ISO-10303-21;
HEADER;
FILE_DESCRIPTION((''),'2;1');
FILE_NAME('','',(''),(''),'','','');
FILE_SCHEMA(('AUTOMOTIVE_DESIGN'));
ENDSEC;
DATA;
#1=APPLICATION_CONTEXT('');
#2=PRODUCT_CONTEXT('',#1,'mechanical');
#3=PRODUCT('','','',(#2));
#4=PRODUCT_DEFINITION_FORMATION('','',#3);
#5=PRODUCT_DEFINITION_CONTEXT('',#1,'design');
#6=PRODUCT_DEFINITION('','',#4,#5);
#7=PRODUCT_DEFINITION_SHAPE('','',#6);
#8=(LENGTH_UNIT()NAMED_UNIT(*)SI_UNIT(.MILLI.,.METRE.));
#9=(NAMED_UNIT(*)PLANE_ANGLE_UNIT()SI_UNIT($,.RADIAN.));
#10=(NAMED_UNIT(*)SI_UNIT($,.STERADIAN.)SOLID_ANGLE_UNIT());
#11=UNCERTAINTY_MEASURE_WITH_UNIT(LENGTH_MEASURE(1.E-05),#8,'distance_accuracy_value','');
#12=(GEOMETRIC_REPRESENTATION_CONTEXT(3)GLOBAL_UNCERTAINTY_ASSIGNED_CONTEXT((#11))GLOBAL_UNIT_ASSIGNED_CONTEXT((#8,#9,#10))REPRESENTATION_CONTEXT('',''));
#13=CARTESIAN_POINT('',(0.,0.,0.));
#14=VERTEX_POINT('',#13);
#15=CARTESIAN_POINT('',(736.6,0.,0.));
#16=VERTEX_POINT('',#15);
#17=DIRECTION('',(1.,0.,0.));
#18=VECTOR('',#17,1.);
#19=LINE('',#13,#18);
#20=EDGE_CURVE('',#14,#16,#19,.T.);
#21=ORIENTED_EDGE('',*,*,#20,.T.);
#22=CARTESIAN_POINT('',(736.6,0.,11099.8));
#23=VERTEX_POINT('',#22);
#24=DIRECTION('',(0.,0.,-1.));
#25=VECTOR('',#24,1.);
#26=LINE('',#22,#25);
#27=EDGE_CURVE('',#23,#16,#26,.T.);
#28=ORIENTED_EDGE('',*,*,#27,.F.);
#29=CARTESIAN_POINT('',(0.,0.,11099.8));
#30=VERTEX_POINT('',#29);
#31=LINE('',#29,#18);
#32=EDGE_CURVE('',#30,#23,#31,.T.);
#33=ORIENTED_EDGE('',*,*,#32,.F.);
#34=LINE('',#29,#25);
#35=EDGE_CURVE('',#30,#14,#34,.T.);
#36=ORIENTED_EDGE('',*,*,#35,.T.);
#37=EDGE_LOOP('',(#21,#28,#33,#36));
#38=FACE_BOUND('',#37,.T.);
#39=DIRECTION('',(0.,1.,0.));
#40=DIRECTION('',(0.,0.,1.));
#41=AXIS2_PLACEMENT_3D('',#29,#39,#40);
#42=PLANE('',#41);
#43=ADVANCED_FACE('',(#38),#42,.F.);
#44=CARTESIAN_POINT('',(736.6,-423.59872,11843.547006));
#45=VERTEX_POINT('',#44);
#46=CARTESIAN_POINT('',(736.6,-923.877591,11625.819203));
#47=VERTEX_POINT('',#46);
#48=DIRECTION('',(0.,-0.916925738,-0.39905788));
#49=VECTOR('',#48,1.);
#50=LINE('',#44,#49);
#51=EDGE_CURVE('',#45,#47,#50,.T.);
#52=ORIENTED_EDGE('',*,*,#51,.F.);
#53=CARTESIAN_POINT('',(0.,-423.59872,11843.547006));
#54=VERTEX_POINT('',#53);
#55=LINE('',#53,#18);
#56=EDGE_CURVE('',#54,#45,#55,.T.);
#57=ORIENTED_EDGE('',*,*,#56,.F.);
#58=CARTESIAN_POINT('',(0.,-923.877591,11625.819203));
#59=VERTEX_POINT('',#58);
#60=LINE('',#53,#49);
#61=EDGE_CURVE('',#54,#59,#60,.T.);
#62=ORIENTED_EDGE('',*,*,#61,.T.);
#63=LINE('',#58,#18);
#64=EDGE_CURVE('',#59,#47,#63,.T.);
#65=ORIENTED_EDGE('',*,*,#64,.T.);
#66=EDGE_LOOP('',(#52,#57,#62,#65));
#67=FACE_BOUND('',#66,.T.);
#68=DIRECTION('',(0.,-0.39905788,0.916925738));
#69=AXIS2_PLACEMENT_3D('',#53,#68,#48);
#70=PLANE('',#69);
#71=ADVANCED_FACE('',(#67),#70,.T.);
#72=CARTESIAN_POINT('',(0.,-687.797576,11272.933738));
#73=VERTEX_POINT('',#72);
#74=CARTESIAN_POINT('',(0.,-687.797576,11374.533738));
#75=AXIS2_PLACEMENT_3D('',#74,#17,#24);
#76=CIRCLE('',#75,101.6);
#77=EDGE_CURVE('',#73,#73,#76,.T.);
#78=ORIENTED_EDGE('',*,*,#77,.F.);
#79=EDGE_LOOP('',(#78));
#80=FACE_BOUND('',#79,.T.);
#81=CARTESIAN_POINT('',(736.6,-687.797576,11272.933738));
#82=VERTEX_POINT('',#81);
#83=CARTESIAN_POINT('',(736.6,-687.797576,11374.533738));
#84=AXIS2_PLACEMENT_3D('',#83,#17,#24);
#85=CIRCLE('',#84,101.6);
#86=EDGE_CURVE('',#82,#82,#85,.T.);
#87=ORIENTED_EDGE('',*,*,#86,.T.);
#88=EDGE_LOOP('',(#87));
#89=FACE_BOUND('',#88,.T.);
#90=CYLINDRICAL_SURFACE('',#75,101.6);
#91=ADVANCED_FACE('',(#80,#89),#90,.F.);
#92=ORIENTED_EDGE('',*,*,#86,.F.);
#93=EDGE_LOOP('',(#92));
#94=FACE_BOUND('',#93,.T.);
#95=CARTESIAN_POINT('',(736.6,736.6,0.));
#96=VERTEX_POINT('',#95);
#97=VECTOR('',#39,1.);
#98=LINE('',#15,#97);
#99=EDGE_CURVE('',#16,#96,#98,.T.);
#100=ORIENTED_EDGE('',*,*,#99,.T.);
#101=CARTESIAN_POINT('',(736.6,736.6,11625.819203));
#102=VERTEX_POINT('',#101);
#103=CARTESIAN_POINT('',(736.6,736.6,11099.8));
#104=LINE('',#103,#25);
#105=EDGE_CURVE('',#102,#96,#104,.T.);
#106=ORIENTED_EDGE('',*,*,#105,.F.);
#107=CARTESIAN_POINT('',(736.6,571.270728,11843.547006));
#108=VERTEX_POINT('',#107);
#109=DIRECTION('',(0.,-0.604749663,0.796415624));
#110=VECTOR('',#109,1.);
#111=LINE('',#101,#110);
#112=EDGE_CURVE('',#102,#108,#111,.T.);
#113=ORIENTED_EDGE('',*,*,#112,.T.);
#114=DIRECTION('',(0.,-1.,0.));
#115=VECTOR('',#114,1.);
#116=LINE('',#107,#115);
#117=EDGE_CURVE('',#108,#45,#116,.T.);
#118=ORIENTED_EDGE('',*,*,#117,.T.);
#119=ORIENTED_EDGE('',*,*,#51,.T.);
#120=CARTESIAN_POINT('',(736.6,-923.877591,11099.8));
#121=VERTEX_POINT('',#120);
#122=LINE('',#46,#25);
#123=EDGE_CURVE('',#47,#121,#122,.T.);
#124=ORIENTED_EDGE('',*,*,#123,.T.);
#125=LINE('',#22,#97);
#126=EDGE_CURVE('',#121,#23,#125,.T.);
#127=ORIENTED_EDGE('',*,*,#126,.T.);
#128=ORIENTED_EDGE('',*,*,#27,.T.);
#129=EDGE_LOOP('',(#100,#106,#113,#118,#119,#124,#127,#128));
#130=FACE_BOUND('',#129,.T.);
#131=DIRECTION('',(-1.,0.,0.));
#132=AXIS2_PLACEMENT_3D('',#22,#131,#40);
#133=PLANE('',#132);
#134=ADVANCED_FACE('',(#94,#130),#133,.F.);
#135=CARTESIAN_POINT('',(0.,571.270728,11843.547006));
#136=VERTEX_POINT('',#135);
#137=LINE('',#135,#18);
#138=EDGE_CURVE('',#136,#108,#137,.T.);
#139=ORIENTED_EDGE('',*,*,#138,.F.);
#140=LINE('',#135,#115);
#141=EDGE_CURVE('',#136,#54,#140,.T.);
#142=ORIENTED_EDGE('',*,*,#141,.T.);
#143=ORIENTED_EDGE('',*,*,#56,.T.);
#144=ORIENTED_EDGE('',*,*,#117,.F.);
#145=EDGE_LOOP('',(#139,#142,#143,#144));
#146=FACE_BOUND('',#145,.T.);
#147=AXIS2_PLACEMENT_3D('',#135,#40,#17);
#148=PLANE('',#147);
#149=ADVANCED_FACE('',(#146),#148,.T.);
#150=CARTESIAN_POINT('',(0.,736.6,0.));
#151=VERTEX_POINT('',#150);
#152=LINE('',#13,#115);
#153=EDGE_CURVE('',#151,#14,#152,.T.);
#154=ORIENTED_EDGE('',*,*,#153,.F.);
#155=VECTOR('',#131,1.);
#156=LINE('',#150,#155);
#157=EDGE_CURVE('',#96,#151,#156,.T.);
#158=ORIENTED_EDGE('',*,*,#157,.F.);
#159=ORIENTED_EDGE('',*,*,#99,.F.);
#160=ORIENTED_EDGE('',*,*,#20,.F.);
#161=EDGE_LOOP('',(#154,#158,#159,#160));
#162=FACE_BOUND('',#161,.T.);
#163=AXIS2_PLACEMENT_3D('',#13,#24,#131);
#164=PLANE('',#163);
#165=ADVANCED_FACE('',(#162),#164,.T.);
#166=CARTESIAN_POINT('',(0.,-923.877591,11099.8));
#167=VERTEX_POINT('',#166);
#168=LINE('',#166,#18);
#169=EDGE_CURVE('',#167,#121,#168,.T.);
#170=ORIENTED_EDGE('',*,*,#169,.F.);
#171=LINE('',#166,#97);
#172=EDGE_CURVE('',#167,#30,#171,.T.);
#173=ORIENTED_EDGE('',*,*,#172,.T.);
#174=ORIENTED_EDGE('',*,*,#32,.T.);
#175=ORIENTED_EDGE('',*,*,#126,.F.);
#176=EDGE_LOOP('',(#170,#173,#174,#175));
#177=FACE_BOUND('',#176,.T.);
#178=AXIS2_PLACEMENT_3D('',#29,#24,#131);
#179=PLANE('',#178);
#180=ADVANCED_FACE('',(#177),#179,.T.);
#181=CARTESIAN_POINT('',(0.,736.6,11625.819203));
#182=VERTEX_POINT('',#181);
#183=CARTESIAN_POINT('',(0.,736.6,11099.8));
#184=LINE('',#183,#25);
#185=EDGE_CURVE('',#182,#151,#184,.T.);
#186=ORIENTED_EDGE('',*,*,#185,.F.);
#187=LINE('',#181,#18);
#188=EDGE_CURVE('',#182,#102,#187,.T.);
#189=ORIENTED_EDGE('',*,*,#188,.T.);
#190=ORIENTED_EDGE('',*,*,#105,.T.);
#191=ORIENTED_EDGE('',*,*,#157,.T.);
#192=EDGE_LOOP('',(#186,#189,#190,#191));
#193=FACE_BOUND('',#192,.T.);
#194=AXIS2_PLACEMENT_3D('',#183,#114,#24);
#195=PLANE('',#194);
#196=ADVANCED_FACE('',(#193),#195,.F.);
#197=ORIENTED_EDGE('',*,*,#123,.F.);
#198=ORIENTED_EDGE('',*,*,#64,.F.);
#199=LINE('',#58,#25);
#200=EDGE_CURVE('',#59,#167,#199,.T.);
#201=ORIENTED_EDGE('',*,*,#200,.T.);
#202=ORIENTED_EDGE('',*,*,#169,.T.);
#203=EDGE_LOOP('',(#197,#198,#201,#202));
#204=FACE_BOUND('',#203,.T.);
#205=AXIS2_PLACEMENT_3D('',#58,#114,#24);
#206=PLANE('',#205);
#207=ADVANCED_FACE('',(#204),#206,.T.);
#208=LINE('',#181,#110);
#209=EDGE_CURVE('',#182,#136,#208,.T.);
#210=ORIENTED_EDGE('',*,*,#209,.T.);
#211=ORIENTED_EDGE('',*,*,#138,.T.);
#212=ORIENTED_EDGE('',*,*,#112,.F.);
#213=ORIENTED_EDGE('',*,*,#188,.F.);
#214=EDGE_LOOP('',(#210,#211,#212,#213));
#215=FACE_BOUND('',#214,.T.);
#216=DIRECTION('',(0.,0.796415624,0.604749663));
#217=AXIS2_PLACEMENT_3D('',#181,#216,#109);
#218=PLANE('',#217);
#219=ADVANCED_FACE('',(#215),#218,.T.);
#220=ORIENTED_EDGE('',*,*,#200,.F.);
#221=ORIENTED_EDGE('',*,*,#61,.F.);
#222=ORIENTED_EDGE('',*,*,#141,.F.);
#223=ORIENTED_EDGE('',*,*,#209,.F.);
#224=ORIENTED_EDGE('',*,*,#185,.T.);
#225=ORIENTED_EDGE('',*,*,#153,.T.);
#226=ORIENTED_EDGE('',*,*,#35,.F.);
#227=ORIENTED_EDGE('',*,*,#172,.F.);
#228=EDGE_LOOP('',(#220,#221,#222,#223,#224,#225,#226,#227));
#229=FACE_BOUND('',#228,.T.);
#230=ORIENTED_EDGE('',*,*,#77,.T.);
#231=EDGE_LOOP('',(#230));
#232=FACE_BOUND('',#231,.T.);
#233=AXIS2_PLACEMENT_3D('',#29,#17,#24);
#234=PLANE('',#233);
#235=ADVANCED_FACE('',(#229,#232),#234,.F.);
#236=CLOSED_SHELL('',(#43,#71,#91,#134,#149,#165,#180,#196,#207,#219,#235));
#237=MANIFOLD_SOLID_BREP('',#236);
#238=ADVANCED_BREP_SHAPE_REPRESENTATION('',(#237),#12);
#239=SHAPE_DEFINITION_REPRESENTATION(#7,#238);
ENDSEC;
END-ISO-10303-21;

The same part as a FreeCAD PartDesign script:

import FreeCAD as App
import Part
import Sketcher
Q = App.Units.Quantity

doc = App.newDocument("Part")
body = doc.addObject("PartDesign::Body", "Body")

# Sketch on XY plane
sketch1 = body.newObject("Sketcher::SketchObject", "Sketch")
sketch1.AttachmentSupport = (doc.getObject("XY_Plane"), [""])
sketch1.MapMode = "FlatFace"
sketch1.addGeometry(Part.LineSegment(App.Vector(0, 737, 0), App.Vector(0, 0, 0)), False)
sketch1.addGeometry(Part.LineSegment(App.Vector(0, 0, 0), App.Vector(737, 0, 0)), False)
sketch1.addGeometry(Part.LineSegment(App.Vector(737, 0, 0), App.Vector(737, 737, 0)), False)
sketch1.addGeometry(Part.LineSegment(App.Vector(737, 737, 0), App.Vector(0, 737, 0)), False)
sketch1.addConstraint(Sketcher.Constraint("Coincident", 0, 2, 1, 1))
sketch1.addConstraint(Sketcher.Constraint("Coincident", 1, 2, 2, 1))
sketch1.addConstraint(Sketcher.Constraint("Coincident", 2, 2, 3, 1))
sketch1.addConstraint(Sketcher.Constraint("Coincident", 3, 2, 0, 1))
sketch1.addConstraint(Sketcher.Constraint("Vertical", 0))
sketch1.addConstraint(Sketcher.Constraint("Horizontal", 1))
sketch1.addConstraint(Sketcher.Constraint("Vertical", 2))
sketch1.addConstraint(Sketcher.Constraint("Horizontal", 3))
sketch1.addConstraint(Sketcher.Constraint("Coincident", 0, 2, -1, 1))
sketch1.addConstraint(Sketcher.Constraint("Equal", 3, 0))
sketch1.addConstraint(Sketcher.Constraint("DistanceX", 1, 1, 1, 2, Q("29 in")))
pad1 = body.newObject("PartDesign::Pad", "Pad")
pad1.Profile = sketch1
pad1.Length = Q("437 in")

# Sketch on YZ plane
sketch2 = body.newObject("Sketcher::SketchObject", "Sketch001")
sketch2.AttachmentSupport = (doc.getObject("YZ_Plane"), [""])
sketch2.MapMode = "FlatFace"
sketch2.AttachmentOffset = App.Placement(App.Vector(0, 0, 29 * 25.4), App.Rotation())
sketch2.addGeometry(Part.LineSegment(App.Vector(737, 11100, 0), App.Vector(737, 11626, 0)), False)
sketch2.addGeometry(Part.LineSegment(App.Vector(737, 11626, 0), App.Vector(571, 11844, 0)), False)
sketch2.addGeometry(Part.LineSegment(App.Vector(571, 11844, 0), App.Vector(-424, 11844, 0)), False)
sketch2.addGeometry(Part.LineSegment(App.Vector(-424, 11844, 0), App.Vector(-924, 11626, 0)), False)
sketch2.addGeometry(Part.LineSegment(App.Vector(-924, 11626, 0), App.Vector(-924, 11100, 0)), False)
sketch2.addGeometry(Part.LineSegment(App.Vector(-924, 11100, 0), App.Vector(737, 11100, 0)), False)
sketch2.addGeometry(Part.Circle(App.Vector(-688, 11375, 0), App.Vector(0, 0, 1), 102), False)
sketch2.addConstraint(Sketcher.Constraint("Coincident", 0, 2, 1, 1))
sketch2.addConstraint(Sketcher.Constraint("Coincident", 1, 2, 2, 1))
sketch2.addConstraint(Sketcher.Constraint("Coincident", 2, 2, 3, 1))
sketch2.addConstraint(Sketcher.Constraint("Coincident", 3, 2, 4, 1))
sketch2.addConstraint(Sketcher.Constraint("Coincident", 4, 2, 5, 1))
sketch2.addConstraint(Sketcher.Constraint("Coincident", 5, 2, 0, 1))
sketch2.addConstraint(Sketcher.Constraint("Vertical", 0))
sketch2.addConstraint(Sketcher.Constraint("Horizontal", 2))
sketch2.addConstraint(Sketcher.Constraint("Vertical", 4))
sketch2.addConstraint(Sketcher.Constraint("Horizontal", 5))
sketch2.addConstraint(Sketcher.Constraint("Horizontal", 0, 2, 3, 2))
sketch2.addConstraint(Sketcher.Constraint("Diameter", 6, Q("8 in")))
sketch2.addConstraint(Sketcher.Constraint("DistanceX", -1, 1, 0, 2, Q("29 in")))
sketch2.addConstraint(Sketcher.Constraint("DistanceY", -1, 1, 4, 2, Q("437 in")))
sketch2.addConstraint(Sketcher.Constraint("DistanceX", 2, 2, 2, 1, Q("994.869448 mm")))
sketch2.addConstraint(Sketcher.Constraint("DistanceX", 5, 1, 5, 2, Q("1660.477591 mm")))
sketch2.addConstraint(Sketcher.Constraint("Distance", 3, Q("545.604568 mm")))
sketch2.addConstraint(Sketcher.Constraint("DistanceY", 0, 1, 0, 2, Q("526.019203 mm")))
sketch2.addConstraint(Sketcher.Constraint("DistanceX", -1, 1, 1, 2, Q("571.270728 mm")))
sketch2.addConstraint(Sketcher.Constraint("DistanceY", 6, 3, 1, 2, Q("469.013268 mm")))
sketch2.addConstraint(Sketcher.Constraint("DistanceX", 6, 3, -1, 1, Q("687.797576 mm")))
pad2 = body.newObject("PartDesign::Pad", "Pad001")
pad2.Profile = sketch2
pad2.Length = Q("29 in")
pad2.Reversed = True

doc.recompute()
